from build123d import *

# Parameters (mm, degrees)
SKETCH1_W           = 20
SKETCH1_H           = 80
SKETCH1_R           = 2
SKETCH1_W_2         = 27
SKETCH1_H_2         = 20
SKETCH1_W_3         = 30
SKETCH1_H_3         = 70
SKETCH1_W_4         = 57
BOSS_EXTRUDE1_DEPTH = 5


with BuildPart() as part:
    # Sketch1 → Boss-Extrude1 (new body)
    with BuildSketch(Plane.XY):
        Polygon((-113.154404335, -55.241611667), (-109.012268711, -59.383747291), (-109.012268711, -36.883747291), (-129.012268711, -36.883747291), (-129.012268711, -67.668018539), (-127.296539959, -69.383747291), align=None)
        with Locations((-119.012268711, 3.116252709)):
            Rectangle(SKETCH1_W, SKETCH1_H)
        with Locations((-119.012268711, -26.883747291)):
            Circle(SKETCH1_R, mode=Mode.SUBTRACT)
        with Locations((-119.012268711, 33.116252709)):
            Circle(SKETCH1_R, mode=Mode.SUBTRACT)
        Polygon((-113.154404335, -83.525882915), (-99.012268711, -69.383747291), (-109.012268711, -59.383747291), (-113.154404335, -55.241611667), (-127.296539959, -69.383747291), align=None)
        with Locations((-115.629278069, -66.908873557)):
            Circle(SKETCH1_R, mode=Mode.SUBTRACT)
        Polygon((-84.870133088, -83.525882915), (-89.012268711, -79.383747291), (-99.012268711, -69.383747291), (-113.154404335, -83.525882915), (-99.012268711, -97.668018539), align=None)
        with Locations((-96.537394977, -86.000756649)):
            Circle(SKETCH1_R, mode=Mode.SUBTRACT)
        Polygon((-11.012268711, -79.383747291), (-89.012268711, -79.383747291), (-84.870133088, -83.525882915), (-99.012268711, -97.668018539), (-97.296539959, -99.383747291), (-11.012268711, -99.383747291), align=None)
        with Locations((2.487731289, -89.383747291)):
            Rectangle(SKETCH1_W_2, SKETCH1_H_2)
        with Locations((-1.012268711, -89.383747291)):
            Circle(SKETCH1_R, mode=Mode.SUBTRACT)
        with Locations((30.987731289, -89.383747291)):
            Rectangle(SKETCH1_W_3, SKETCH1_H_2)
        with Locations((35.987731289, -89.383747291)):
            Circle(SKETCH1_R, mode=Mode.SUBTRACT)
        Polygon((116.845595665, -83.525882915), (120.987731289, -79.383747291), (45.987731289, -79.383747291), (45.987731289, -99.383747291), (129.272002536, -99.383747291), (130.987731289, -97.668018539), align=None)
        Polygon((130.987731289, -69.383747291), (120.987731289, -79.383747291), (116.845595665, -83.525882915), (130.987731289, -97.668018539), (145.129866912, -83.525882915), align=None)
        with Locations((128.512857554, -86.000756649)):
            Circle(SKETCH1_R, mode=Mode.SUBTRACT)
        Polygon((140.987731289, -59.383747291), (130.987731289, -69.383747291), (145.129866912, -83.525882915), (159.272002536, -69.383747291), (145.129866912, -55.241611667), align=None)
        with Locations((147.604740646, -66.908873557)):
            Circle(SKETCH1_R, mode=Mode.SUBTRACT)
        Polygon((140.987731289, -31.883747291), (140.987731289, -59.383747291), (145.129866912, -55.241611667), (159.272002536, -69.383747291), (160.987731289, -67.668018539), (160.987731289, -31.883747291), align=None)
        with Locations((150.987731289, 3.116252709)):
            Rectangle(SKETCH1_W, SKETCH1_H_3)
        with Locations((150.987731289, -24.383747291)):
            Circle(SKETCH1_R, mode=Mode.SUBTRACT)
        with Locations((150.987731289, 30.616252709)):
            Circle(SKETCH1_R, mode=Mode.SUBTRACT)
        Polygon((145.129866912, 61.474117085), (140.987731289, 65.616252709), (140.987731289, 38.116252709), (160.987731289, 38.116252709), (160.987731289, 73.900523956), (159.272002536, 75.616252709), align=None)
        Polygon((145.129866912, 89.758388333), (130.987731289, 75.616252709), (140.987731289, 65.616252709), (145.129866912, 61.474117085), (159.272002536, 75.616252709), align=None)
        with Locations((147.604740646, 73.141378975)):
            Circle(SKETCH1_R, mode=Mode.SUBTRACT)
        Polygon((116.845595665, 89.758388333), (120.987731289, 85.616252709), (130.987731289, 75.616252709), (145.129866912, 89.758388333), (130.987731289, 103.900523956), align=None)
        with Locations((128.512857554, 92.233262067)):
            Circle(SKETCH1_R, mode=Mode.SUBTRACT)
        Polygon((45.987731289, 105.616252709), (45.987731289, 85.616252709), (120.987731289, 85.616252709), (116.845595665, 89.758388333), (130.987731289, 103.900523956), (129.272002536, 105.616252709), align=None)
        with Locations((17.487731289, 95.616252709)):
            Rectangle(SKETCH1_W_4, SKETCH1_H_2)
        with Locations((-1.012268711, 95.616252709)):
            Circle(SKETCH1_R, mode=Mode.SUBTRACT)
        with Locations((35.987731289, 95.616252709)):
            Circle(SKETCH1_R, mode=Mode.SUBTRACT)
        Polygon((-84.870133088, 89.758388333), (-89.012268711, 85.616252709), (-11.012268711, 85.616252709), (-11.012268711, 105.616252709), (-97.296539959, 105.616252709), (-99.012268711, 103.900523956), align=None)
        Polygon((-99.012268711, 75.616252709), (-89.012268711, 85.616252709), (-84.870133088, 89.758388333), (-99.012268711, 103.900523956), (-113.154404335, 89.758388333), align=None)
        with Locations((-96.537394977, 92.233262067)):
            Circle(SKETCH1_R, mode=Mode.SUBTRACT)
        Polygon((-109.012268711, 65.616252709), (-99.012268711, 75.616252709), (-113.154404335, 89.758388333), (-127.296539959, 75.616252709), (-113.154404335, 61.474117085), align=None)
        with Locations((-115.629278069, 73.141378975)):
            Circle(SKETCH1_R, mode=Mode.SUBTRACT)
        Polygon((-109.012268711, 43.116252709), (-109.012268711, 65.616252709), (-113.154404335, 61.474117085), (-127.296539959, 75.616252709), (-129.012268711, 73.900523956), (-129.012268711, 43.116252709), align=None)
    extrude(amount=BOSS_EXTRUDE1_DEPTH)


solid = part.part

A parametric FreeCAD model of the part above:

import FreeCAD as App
import Part
import Sketcher
from FreeCAD import Vector


def add_polygon(sketch, points):
    """Adds a closed chain of lines whose ends are joined by coincident constraints."""
    first, n = sketch.GeometryCount, len(points)
    for a, b in zip(points, points[1:] + points[:1]):
        sketch.addGeometry(Part.LineSegment(App.Vector(*a, 0), App.Vector(*b, 0)), False)
    for i in range(n):
        sketch.addConstraint(Sketcher.Constraint("Coincident", first + i, 2, first + (i + 1) % n, 1))

doc = App.newDocument("Part")
body = doc.addObject("PartDesign::Body", "Body")

sketch1 = doc.addObject("Sketcher::SketchObject", "Sketch")
body.addObject(sketch1)
sketch1.AttachmentSupport = (doc.XY_Plane, [""])
sketch1.MapMode = "FlatFace"
add_polygon(sketch1, [(-129, -67.7), (-97.3, -99.4), (129.3, -99.4), (131, -97.7), (145.1, -83.5), (159.3, -69.4), (161, -67.7), (161, 73.9), (129.3, 105.6), (-97.3, 105.6), (-99, 103.9), (-113.2, 89.8), (-127.3, 75.6), (-129, 73.9)])
add_polygon(sketch1, [(-109, -59.4), (-109, 65.6), (-89, 85.6), (121, 85.6), (141, 65.6), (141, -59.4), (121, -79.4), (-89, -79.4)])
sketch1.addGeometry(Part.Circle(Vector(-96.5, -86, 0), Vector(0, 0, 1), 2), False)
sketch1.addGeometry(Part.Circle(Vector(-115.6, -66.9, 0), Vector(0, 0, 1), 2), False)
sketch1.addGeometry(Part.Circle(Vector(-1, -89.4, 0), Vector(0, 0, 1), 2), False)
sketch1.addGeometry(Part.Circle(Vector(-119, -26.9, 0), Vector(0, 0, 1), 2), False)
sketch1.addGeometry(Part.Circle(Vector(36, -89.4, 0), Vector(0, 0, 1), 2), False)
sketch1.addGeometry(Part.Circle(Vector(128.5, -86, 0), Vector(0, 0, 1), 2), False)
sketch1.addGeometry(Part.Circle(Vector(147.6, -66.9, 0), Vector(0, 0, 1), 2), False)
sketch1.addGeometry(Part.Circle(Vector(151, -24.4, 0), Vector(0, 0, 1), 2), False)
sketch1.addGeometry(Part.Circle(Vector(-119, 33.1, 0), Vector(0, 0, 1), 2), False)
sketch1.addGeometry(Part.Circle(Vector(-115.6, 73.1, 0), Vector(0, 0, 1), 2), False)
sketch1.addGeometry(Part.Circle(Vector(-96.5, 92.2, 0), Vector(0, 0, 1), 2), False)
sketch1.addGeometry(Part.Circle(Vector(-1, 95.6, 0), Vector(0, 0, 1), 2), False)
sketch1.addGeometry(Part.Circle(Vector(151, 30.6, 0), Vector(0, 0, 1), 2), False)
sketch1.addGeometry(Part.Circle(Vector(36, 95.6, 0), Vector(0, 0, 1), 2), False)
sketch1.addGeometry(Part.Circle(Vector(147.6, 73.1, 0), Vector(0, 0, 1), 2), False)
sketch1.addGeometry(Part.Circle(Vector(128.5, 92.2, 0), Vector(0, 0, 1), 2), False)
sketch1.addConstraint([
    Sketcher.Constraint("Horizontal", 1),
    Sketcher.Constraint("Vertical", 6),
    Sketcher.Constraint("Horizontal", 8),
    Sketcher.Constraint("Vertical", 13),
    Sketcher.Constraint("Vertical", 14),
    Sketcher.Constraint("Horizontal", 16),
    Sketcher.Constraint("Vertical", 18),
    Sketcher.Constraint("Horizontal", 20),
    Sketcher.Constraint("Equal", 22, 23),
    Sketcher.Constraint("Equal", 23, 24),
    Sketcher.Constraint("Equal", 24, 25),
    Sketcher.Constraint("Equal", 25, 26),
    Sketcher.Constraint("Equal", 26, 27),
    Sketcher.Constraint("Equal", 27, 28),
    Sketcher.Constraint("Equal", 28, 29),
    Sketcher.Constraint("Equal", 29, 30),
    Sketcher.Constraint("Equal", 30, 31),
    Sketcher.Constraint("Equal", 31, 32),
    Sketcher.Constraint("Equal", 32, 33),
    Sketcher.Constraint("Equal", 33, 34),
    Sketcher.Constraint("Equal", 34, 35),
    Sketcher.Constraint("Equal", 35, 36),
    Sketcher.Constraint("Equal", 36, 37),
    Sketcher.Constraint("Perpendicular", 0, 2),
    Sketcher.Constraint("Parallel", 2, 3),
    Sketcher.Constraint("Parallel", 3, 4),
    Sketcher.Constraint("Parallel", 4, 5),
    Sketcher.Constraint("Perpendicular", 5, 7),
    Sketcher.Constraint("Perpendicular", 7, 9),
    Sketcher.Constraint("Parallel", 9, 10),
    Sketcher.Constraint("Parallel", 10, 11),
    Sketcher.Constraint("Parallel", 11, 12),
    Sketcher.Constraint("Parallel", 12, 15),
    Sketcher.Constraint("Perpendicular", 15, 17),
    Sketcher.Constraint("Perpendicular", 17, 19),
    Sketcher.Constraint("Perpendicular", 19, 21),
    Sketcher.Constraint("Horizontal", 24, 3, 26, 3),
    Sketcher.Constraint("Horizontal", 22, 3, 27, 3),
    Sketcher.Constraint("Horizontal", 23, 3, 28, 3),
    Sketcher.Constraint("Horizontal", 33, 3, 35, 3),
    Sketcher.Constraint("Horizontal", 31, 3, 36, 3),
    Sketcher.Constraint("Horizontal", 32, 3, 37, 3),
    Sketcher.Constraint("Horizontal", 6, 2, 12, 2),
    Sketcher.Constraint("Horizontal", 5, 2, 13, 2),
    Sketcher.Constraint("Horizontal", 14, 2, 17, 2),
    Sketcher.Constraint("Horizontal", 18, 2, 21, 2),
    Sketcher.Constraint("Vertical", 25, 3, 30, 3),
    Sketcher.Constraint("Vertical", 23, 3, 31, 3),
    Sketcher.Constraint("Vertical", 22, 3, 32, 3),
    Sketcher.Constraint("Vertical", 24, 3, 33, 3),
    Sketcher.Constraint("Vertical", 29, 3, 34, 3),
    Sketcher.Constraint("Vertical", 26, 3, 35, 3),
    Sketcher.Constraint("Vertical", 28, 3, 36, 3),
    Sketcher.Constraint("Vertical", 27, 3, 37, 3),
    Sketcher.Constraint("Vertical", 1, 2, 7, 2),
    Sketcher.Constraint("Vertical", 0, 2, 8, 2),
    Sketcher.Constraint("Vertical", 16, 2, 19, 2),
    Sketcher.Constraint("Equal", 3, 4),
    Sketcher.Constraint("Equal", 2, 5),
    Sketcher.Constraint("Equal", 5, 9),
    Sketcher.Constraint("Equal", 4, 10),
    Sketcher.Constraint("Equal", 10, 11),
    Sketcher.Constraint("Diameter", 22, 4.0),
    Sketcher.Constraint("DistanceX", 16, 1, 16, 2, 210.0),
    Sketcher.Constraint("DistanceY", 14, 1, 14, 2, 125.0),
    Sketcher.Constraint("Distance", 3, 20.0),
    Sketcher.Constraint("DistanceX", 25, 3, 24, 3, 118.0),
    Sketcher.Constraint("DistanceX", 24, 3, 26, 3, 37.0),
    Sketcher.Constraint("DistanceX", 26, 3, 29, 3, 115.0),
    Sketcher.Constraint("DistanceY", 26, 3, 29, 3, 65.0),
    Sketcher.Constraint("DistanceY", 25, 3, 30, 3, 60.0),
    Sketcher.Constraint("DistanceY", 24, 3, 33, 3, 185.0),
    Sketcher.Constraint("DistanceY", 29, 3, 34, 3, 55.0),
    Sketcher.Constraint("DistanceY", 0, 2, 24, 3, 10.0),
    Sketcher.Constraint("DistanceX", 2, 2, 29, 3, 20.0),
    Sketcher.Constraint("DistanceX", 1, 2, 4, 2, 30.0),
    Sketcher.Constraint("DistanceY", 34, 3, 7, 2, 75.0),
    Sketcher.Constraint("DistanceX", 30, 3, 9, 2, 20.0),
    Sketcher.Constraint("DistanceY", 14, 2, 11, 2, 10.0),
    Sketcher.Constraint("DistanceX", 12, 2, 14, 2, 20.0),
    Sketcher.Constraint("DistanceX", 9, 2, 15, 2, 10.0),
    Sketcher.Constraint("DistanceY", 24, 3, 25, 3, 62.5),
    Sketcher.Constraint("DistanceX", 23, 3, -1, 1, 115.629278),
    Sketcher.Constraint("DistanceX", 24, 3, -1, 1, 1.012269),
    Sketcher.Constraint("DistanceX", -1, 1, 28, 3, 147.604741),
    Sketcher.Constraint("DistanceY", -1, 1, 31, 3, 73.141379),
    Sketcher.Constraint("DistanceY", 2, 2, -1, 1, 97.668019),
    Sketcher.Constraint("DistanceY", 24, 3, 22, 3, 3.382991),
    Sketcher.Constraint("DistanceY", 30, 3, 32, 3, 59.117009),
    Sketcher.Constraint("DistanceY", 3, 2, 28, 3, 16.617009),
    Sketcher.Constraint("DistanceX", 27, 3, 3, 2, 16.617009),
    Sketcher.Constraint("DistanceX", 10, 2, 32, 3, 16.617009),
])
pad1 = doc.addObject("PartDesign::Pad", "Pad")
body.addObject(pad1)
pad1.Profile = sketch1
pad1.Length = 5

doc.recompute()
